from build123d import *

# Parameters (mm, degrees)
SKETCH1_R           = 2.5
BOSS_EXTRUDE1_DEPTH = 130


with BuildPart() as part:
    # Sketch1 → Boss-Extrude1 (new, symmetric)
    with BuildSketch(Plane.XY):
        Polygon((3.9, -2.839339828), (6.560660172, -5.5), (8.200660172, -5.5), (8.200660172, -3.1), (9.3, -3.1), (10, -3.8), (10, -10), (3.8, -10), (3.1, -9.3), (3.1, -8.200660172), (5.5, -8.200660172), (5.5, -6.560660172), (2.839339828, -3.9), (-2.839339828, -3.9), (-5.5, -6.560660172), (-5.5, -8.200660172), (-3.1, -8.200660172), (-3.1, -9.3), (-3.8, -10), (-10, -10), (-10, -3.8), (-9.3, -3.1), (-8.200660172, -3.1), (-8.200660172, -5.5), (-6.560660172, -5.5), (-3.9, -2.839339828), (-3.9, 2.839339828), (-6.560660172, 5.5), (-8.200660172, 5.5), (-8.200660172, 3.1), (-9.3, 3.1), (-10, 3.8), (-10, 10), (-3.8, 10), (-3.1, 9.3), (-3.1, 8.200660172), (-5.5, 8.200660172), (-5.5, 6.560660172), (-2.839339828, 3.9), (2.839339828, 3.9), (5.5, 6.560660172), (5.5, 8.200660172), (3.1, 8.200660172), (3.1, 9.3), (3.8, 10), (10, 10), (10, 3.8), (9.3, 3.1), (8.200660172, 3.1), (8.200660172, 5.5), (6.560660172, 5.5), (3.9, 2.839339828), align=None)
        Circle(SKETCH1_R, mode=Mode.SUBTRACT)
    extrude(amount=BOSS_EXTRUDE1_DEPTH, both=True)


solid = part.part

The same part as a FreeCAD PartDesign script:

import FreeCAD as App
import Part
import Sketcher
from FreeCAD import Vector
Q = App.Units.Quantity


def add_polygon(sketch, points):
    """Adds a closed chain of lines whose ends are joined by coincident constraints."""
    first, n = sketch.GeometryCount, len(points)
    for a, b in zip(points, points[1:] + points[:1]):
        sketch.addGeometry(Part.LineSegment(App.Vector(*a, 0), App.Vector(*b, 0)), False)
    for i in range(n):
        sketch.addConstraint(Sketcher.Constraint("Coincident", first + i, 2, first + (i + 1) % n, 1))

doc = App.newDocument("Part")
body = doc.addObject("PartDesign::Body", "Body")

# Sketch on XY plane
sketch1 = doc.addObject("Sketcher::SketchObject", "Sketch")
body.addObject(sketch1)
sketch1.AttachmentSupport = (doc.XY_Plane, [""])
sketch1.MapMode = "FlatFace"
add_polygon(sketch1, [(6.6, -5.5), (3.9, -2.8), (3.9, 2.8), (6.6, 5.5), (8.2, 5.5), (8.2, 3.1), (9.3, 3.1), (10, 3.8), (10, 10), (3.8, 10), (3.1, 9.3), (3.1, 8.2), (5.5, 8.2), (5.5, 6.6), (2.8, 3.9), (-2.8, 3.9), (-5.5, 6.6), (-5.5, 8.2), (-3.1, 8.2), (-3.1, 9.3), (-3.8, 10), (-10, 10), (-10, 3.8), (-9.3, 3.1), (-8.2, 3.1), (-8.2, 5.5), (-6.6, 5.5), (-3.9, 2.8), (-3.9, -2.8), (-6.6, -5.5), (-8.2, -5.5), (-8.2, -3.1), (-9.3, -3.1), (-10, -3.8), (-10, -10), (-3.8, -10), (-3.1, -9.3), (-3.1, -8.2), (-5.5, -8.2), (-5.5, -6.6), (-2.8, -3.9), (2.8, -3.9), (5.5, -6.6), (5.5, -8.2), (3.1, -8.2), (3.1, -9.3), (3.8, -10), (10, -10), (10, -3.8), (9.3, -3.1), (8.2, -3.1), (8.2, -5.5)])  # lines 0-51
sketch1.addGeometry(Part.Circle(Vector(0, 0, 0), Vector(0, 0, 1), 2.5), False)  # 52
sketch1.addConstraint([
    Sketcher.Constraint("Vertical", 1),
    Sketcher.Constraint("Horizontal", 3),
    Sketcher.Constraint("Vertical", 4),
    Sketcher.Constraint("Horizontal", 5),
    Sketcher.Constraint("Vertical", 7),
    Sketcher.Constraint("Horizontal", 8),
    Sketcher.Constraint("Vertical", 10),
    Sketcher.Constraint("Horizontal", 11),
    Sketcher.Constraint("Vertical", 12),
    Sketcher.Constraint("Horizontal", 14),
    Sketcher.Constraint("Vertical", 16),
    Sketcher.Constraint("Horizontal", 17),
    Sketcher.Constraint("Vertical", 18),
    Sketcher.Constraint("Horizontal", 20),
    Sketcher.Constraint("Vertical", 21),
    Sketcher.Constraint("Horizontal", 23),
    Sketcher.Constraint("Vertical", 24),
    Sketcher.Constraint("Horizontal", 25),
    Sketcher.Constraint("Vertical", 27),
    Sketcher.Constraint("Horizontal", 29),
    Sketcher.Constraint("Vertical", 30),
    Sketcher.Constraint("Horizontal", 31),
    Sketcher.Constraint("Vertical", 33),
    Sketcher.Constraint("Horizontal", 34),
    Sketcher.Constraint("Vertical", 36),
    Sketcher.Constraint("Horizontal", 37),
    Sketcher.Constraint("Vertical", 38),
    Sketcher.Constraint("Horizontal", 40),
    Sketcher.Constraint("Vertical", 42),
    Sketcher.Constraint("Horizontal", 43),
    Sketcher.Constraint("Vertical", 44),
    Sketcher.Constraint("Horizontal", 46),
    Sketcher.Constraint("Vertical", 47),
    Sketcher.Constraint("Horizontal", 49),
    Sketcher.Constraint("Vertical", 50),
    Sketcher.Constraint("Horizontal", 51),
    Sketcher.Constraint("Coincident", 52, 3, -1, 1),
    Sketcher.Constraint("Symmetric", 0, 2, 26, 2, -1, 1),
    Sketcher.Constraint("Symmetric", 2, 2, 28, 2, -1, 1),
    Sketcher.Constraint("Symmetric", 4, 2, 30, 2, -1, 1),
    Sketcher.Constraint("Symmetric", 6, 2, 32, 2, -1, 1),
    Sketcher.Constraint("Symmetric", 8, 2, 34, 2, -1, 1),
    Sketcher.Constraint("Symmetric", 9, 2, 35, 2, -1, 1),
    Sketcher.Constraint("Symmetric", 11, 2, 37, 2, -1, 1),
    Sketcher.Constraint("Symmetric", 13, 2, 39, 2, -1, 1),
    Sketcher.Constraint("Symmetric", 15, 2, 41, 2, -1, 1),
    Sketcher.Constraint("Symmetric", 17, 2, 43, 2, -1, 1),
    Sketcher.Constraint("Symmetric", 19, 2, 45, 2, -1, 1),
    Sketcher.Constraint("Symmetric", 21, 2, 47, 2, -1, 1),
    Sketcher.Constraint("Symmetric", 22, 2, 48, 2, -1, 1),
    Sketcher.Constraint("Symmetric", 24, 2, 50, 2, -1, 1),
    Sketcher.Constraint("Symmetric", 12, 2, 15, 2, -2),
    Sketcher.Constraint("Symmetric", 10, 2, 17, 2, -2),
    Sketcher.Constraint("Symmetric", 8, 2, 19, 2, -2),
    Sketcher.Constraint("Symmetric", 6, 2, 21, 2, -2),
    Sketcher.Constraint("Symmetric", 5, 2, 22, 2, -2),
    Sketcher.Constraint("Symmetric", 3, 2, 24, 2, -2),
    Sketcher.Constraint("Perpendicular", 0, 2),
    Sketcher.Constraint("Parallel", 2, 6),
    Sketcher.Constraint("Parallel", 6, 9),
    Sketcher.Constraint("Parallel", 9, 13),
    Sketcher.Constraint("Perpendicular", 13, 15),
    Sketcher.Constraint("Parallel", 15, 19),
    Sketcher.Constraint("Parallel", 19, 22),
    Sketcher.Constraint("Parallel", 22, 26),
    Sketcher.Constraint("Perpendicular", 26, 28),
    Sketcher.Constraint("Parallel", 28, 32),
    Sketcher.Constraint("Parallel", 35, 39),
    Sketcher.Constraint("Perpendicular", 39, 41),
    Sketcher.Constraint("Parallel", 41, 45),
    Sketcher.Constraint("Horizontal", 1, 2, 26, 2),
    Sketcher.Constraint("Equal", 40, 1),
    Sketcher.Constraint("Equal", 43, 4),
    Sketcher.Constraint("Equal", 46, 7),
    Sketcher.Constraint("Equal", 49, 10),
    Sketcher.Constraint("Equal", 51, 12),
    Sketcher.Constraint("Equal", 6, 9),
    Sketcher.Constraint("Equal", 2, 13),
    Sketcher.Constraint("Diameter", 52, Q("5 mm")),
    Sketcher.Constraint("DistanceX", 8, 2, 8, 1, Q("6.2 mm")),
    Sketcher.Constraint("DistanceX", 11, 1, 11, 2, Q("2.4 mm")),
    Sketcher.Constraint("DistanceX", -1, 1, 6, 2, Q("10 mm")),
    Sketcher.Constraint("DistanceX", 3, 1, 3, 2, Q("1.64 mm")),
    Sketcher.Constraint("DistanceX", -1, 1, 0, 2, Q("3.9 mm")),
    Sketcher.Constraint("DistanceY", -1, 1, 2, 2, Q("5.5 mm")),
    Sketcher.Constraint("DistanceX", 5, 1, 5, 2, Q("1.09934 mm")),
])
pad1 = doc.addObject("PartDesign::Pad", "Pad")
body.addObject(pad1)
pad1.Profile = sketch1
pad1.Length = 260
pad1.Midplane = True

doc.recompute()
